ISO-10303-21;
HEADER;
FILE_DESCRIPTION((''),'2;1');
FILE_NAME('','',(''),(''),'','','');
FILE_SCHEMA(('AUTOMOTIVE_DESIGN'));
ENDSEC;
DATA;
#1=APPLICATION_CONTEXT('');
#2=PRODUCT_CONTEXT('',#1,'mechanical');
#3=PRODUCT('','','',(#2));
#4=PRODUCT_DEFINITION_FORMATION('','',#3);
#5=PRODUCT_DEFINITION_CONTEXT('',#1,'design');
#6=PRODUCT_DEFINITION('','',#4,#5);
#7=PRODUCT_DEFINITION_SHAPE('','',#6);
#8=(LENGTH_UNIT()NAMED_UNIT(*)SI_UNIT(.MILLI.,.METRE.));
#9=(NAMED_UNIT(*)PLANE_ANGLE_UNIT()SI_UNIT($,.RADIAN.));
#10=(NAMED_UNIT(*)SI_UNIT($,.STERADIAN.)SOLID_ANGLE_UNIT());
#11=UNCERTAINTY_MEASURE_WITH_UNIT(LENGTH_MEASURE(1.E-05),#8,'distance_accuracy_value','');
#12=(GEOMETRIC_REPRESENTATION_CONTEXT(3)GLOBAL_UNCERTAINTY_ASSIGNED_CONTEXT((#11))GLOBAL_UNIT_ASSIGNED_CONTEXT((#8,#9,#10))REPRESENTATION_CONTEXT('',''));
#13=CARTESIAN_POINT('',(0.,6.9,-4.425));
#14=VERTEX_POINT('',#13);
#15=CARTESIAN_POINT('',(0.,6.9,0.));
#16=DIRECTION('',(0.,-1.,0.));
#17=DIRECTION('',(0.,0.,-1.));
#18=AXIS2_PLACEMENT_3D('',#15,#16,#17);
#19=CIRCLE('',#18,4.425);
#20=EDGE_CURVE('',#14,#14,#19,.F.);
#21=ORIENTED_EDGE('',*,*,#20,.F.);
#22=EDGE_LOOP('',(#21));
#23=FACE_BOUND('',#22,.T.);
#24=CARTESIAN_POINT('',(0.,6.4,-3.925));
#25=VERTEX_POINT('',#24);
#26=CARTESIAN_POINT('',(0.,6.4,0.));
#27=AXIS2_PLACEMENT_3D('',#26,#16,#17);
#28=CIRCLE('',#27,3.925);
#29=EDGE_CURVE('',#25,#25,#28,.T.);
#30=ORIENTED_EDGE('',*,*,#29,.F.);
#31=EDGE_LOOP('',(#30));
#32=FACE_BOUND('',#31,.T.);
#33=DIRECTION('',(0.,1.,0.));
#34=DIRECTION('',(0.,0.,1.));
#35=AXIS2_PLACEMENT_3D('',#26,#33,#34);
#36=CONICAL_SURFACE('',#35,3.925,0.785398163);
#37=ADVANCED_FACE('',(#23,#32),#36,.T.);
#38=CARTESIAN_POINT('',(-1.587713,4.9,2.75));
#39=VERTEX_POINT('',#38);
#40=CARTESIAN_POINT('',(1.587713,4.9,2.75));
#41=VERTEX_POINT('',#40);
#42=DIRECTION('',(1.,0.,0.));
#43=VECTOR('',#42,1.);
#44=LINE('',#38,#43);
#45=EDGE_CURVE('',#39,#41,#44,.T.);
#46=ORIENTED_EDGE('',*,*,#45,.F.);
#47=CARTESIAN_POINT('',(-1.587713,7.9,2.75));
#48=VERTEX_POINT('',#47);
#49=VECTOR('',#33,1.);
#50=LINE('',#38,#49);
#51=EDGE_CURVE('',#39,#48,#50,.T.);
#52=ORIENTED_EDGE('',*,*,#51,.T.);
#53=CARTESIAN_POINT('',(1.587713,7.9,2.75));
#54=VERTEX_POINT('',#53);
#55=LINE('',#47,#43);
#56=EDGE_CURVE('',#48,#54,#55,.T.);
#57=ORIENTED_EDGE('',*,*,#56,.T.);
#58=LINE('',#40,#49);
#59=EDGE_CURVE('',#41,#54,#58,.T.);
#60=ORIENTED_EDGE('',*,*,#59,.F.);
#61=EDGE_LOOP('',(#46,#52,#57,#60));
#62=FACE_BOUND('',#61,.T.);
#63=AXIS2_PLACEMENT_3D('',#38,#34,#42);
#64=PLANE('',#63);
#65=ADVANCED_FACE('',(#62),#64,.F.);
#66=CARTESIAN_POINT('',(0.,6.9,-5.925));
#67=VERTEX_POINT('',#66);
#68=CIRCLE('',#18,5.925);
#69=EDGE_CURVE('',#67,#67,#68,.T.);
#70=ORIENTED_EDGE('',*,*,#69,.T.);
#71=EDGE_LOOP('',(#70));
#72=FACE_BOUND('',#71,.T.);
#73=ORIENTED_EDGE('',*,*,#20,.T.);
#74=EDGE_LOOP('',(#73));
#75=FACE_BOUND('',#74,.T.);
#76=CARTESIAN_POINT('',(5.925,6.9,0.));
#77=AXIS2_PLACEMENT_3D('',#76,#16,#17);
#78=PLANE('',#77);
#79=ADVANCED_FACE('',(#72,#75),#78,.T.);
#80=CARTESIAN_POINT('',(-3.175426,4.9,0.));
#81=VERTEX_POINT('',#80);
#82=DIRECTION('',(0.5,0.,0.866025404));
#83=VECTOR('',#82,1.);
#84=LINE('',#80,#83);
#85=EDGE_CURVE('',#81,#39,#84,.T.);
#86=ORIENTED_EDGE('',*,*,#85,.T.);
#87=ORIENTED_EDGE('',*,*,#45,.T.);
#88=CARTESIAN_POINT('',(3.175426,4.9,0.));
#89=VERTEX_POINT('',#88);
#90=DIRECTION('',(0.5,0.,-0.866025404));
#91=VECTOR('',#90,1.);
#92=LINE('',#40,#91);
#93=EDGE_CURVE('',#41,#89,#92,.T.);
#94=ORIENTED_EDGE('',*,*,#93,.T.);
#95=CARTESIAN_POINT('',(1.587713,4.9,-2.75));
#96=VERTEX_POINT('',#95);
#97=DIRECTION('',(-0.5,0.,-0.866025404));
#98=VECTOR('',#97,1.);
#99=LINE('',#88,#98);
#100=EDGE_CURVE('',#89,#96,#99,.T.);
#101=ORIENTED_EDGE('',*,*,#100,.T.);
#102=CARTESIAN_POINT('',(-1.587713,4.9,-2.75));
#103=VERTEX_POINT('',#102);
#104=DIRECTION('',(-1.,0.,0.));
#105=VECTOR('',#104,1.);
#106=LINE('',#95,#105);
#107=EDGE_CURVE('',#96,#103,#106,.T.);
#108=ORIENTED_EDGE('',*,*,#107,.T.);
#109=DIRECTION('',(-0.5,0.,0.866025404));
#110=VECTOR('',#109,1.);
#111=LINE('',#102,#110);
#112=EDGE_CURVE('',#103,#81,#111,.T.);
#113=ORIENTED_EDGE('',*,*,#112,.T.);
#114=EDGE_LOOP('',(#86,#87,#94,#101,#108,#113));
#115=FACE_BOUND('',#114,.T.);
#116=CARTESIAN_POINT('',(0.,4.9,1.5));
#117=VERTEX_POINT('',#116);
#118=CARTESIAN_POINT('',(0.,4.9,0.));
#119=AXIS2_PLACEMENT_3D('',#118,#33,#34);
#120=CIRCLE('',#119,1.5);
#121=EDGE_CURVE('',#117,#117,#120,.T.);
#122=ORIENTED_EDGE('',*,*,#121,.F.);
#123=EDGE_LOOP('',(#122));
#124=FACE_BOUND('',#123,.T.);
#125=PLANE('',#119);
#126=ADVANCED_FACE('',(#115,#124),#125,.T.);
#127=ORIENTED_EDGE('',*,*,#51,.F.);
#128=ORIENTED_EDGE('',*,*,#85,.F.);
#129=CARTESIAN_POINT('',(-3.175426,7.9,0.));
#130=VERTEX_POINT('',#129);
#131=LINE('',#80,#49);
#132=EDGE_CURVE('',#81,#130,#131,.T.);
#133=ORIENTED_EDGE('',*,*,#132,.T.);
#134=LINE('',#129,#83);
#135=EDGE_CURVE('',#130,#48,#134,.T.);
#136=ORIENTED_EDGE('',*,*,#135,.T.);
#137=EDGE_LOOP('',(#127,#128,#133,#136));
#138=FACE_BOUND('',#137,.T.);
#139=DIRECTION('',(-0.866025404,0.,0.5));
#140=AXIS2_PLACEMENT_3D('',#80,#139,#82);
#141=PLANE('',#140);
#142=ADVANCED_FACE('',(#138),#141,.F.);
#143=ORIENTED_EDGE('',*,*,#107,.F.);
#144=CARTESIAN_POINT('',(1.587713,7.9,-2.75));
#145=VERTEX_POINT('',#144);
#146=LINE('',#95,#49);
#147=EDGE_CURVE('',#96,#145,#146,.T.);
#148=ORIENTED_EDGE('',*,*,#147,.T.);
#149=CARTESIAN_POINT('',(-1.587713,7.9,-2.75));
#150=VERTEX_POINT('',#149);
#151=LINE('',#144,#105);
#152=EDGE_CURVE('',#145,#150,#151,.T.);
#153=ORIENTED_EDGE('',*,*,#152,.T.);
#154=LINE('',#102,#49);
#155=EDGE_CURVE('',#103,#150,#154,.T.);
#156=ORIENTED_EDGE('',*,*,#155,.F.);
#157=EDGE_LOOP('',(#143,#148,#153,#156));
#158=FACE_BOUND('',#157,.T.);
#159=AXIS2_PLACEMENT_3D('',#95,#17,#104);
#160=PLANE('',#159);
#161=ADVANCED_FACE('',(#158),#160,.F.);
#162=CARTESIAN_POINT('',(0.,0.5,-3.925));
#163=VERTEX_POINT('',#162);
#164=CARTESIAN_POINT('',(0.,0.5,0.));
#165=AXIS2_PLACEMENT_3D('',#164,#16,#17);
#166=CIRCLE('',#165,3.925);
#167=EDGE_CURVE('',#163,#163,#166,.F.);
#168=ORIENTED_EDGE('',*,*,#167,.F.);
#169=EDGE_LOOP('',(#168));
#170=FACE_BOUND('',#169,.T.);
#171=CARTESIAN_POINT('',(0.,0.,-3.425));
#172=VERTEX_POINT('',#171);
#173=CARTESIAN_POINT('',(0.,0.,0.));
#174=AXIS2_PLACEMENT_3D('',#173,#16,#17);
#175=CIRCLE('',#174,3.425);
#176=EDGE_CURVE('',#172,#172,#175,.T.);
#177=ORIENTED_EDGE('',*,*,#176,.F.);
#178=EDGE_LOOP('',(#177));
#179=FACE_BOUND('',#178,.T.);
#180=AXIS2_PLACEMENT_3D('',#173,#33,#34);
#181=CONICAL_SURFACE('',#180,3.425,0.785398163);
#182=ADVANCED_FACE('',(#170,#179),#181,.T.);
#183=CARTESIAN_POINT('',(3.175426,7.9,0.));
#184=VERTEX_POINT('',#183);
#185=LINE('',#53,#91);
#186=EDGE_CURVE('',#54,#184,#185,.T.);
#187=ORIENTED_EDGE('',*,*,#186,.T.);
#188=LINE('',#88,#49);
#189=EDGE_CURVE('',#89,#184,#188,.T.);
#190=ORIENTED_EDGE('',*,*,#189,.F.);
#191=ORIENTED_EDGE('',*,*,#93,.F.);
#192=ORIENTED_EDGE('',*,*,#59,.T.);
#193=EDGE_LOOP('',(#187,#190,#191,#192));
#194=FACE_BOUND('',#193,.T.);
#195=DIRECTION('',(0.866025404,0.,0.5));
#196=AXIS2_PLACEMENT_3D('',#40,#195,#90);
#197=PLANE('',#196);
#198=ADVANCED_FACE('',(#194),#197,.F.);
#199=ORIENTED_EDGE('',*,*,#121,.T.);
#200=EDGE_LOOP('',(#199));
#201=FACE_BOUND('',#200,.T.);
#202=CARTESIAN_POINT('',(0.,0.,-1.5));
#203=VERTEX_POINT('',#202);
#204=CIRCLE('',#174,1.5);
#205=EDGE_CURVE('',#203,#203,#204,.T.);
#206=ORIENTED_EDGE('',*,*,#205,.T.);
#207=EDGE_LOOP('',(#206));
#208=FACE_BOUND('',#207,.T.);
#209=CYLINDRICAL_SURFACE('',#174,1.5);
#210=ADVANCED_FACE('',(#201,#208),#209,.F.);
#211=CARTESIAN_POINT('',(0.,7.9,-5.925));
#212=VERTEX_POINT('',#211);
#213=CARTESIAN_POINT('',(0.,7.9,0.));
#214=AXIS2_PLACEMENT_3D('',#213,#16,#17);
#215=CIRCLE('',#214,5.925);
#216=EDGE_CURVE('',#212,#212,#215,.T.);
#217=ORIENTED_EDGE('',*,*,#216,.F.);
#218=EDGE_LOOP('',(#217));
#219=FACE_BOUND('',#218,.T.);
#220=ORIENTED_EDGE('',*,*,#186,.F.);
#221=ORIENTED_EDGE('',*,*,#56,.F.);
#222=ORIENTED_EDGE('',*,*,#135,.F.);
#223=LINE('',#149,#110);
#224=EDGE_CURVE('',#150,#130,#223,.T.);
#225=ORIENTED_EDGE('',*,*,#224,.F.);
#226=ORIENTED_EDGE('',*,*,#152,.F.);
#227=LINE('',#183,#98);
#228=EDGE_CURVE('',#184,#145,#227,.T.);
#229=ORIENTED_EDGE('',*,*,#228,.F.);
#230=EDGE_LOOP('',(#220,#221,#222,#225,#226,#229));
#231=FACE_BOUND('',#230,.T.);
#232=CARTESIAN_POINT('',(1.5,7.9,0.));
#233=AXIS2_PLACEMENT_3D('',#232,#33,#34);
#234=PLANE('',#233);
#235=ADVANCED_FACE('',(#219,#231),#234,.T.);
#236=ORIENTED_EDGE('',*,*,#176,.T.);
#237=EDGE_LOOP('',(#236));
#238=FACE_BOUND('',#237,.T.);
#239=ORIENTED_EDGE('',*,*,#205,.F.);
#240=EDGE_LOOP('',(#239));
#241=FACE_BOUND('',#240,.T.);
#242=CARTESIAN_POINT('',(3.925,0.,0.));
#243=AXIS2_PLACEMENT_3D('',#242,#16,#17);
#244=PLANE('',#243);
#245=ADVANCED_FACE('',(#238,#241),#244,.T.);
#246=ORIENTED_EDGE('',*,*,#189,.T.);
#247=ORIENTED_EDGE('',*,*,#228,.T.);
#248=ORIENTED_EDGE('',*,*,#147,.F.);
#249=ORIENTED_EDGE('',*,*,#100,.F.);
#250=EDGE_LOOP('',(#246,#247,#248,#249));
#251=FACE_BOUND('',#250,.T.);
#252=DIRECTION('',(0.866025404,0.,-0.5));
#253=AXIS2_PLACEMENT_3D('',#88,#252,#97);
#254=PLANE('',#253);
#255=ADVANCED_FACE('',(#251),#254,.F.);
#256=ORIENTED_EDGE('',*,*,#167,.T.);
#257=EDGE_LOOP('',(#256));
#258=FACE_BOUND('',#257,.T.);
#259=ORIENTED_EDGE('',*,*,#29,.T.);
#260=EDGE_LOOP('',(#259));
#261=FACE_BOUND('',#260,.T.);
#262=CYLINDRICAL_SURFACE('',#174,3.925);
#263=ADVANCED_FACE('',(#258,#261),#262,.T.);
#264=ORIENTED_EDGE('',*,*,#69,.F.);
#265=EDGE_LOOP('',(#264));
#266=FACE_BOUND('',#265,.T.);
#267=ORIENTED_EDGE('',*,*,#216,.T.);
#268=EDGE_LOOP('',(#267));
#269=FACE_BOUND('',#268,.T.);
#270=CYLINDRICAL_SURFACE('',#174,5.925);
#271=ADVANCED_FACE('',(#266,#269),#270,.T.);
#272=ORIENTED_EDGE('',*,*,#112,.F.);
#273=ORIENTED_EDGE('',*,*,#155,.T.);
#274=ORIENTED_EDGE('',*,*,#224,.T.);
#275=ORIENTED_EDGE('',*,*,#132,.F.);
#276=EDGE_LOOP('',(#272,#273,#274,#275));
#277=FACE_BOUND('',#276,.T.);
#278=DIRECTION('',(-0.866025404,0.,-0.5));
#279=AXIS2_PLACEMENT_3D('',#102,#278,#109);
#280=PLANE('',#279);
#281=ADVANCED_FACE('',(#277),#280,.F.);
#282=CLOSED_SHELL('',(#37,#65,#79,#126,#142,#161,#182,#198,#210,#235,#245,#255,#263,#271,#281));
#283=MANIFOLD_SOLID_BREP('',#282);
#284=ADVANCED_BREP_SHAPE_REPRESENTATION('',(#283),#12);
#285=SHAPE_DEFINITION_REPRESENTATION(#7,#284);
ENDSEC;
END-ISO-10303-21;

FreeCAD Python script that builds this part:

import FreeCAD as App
import Part
import Sketcher
Q = App.Units.Quantity


def edges_at(feature, points):
    """Names of the edges that pass closest to the given points."""
    edges = feature.Shape.Edges
    near = lambda p: min(range(len(edges)), key=lambda i: edges[i].distToShape(Part.Vertex(*p))[0])
    return sorted({f"Edge{near(p) + 1}" for p in points})


def add_polygon(sketch, points):
    """Adds a closed chain of lines whose ends are joined by coincident constraints."""
    first, n = sketch.GeometryCount, len(points)
    for a, b in zip(points, points[1:] + points[:1]):
        sketch.addGeometry(Part.LineSegment(App.Vector(*a, 0), App.Vector(*b, 0)), False)
    for i in range(n):
        sketch.addConstraint(Sketcher.Constraint("Coincident", first + i, 2, first + (i + 1) % n, 1))

doc = App.newDocument("Part")
body = doc.addObject("PartDesign::Body", "Body")

# Sketch on XY plane
sketch1 = body.newObject("Sketcher::SketchObject", "Sketch")
sketch1.AttachmentSupport = (doc.getObject("XY_Plane"), [""])
sketch1.MapMode = "FlatFace"
add_polygon(sketch1, [(5.9, 7.9), (1.5, 7.9), (1.5, 0), (3.9, 0), (3.9, 6.9), (5.9, 6.9)])  # lines 0-5
sketch1.addConstraint(Sketcher.Constraint("Horizontal", 0))
sketch1.addConstraint(Sketcher.Constraint("Vertical", 1))
sketch1.addConstraint(Sketcher.Constraint("Horizontal", 2))
sketch1.addConstraint(Sketcher.Constraint("Vertical", 3))
sketch1.addConstraint(Sketcher.Constraint("Horizontal", 4))
sketch1.addConstraint(Sketcher.Constraint("Vertical", 5))
sketch1.addConstraint(Sketcher.Constraint("PointOnObject", 1, 2, -1))
sketch1.addConstraint(Sketcher.Constraint("DistanceX", 4, 1, 4, 2, 2.0))
sketch1.addConstraint(Sketcher.Constraint("DistanceY", 5, 1, 5, 2, 1.0))
sketch1.addConstraint(Sketcher.Constraint("DistanceY", 1, 2, 1, 1, 7.9))
sketch1.addConstraint(Sketcher.Constraint("DistanceX", -1, 1, 0, 2, 1.5))
sketch1.addConstraint(Sketcher.Constraint("DistanceX", 0, 2, 0, 1, 4.425))
revolution = body.newObject("PartDesign::Revolution", "Revolution")
revolution.Profile = sketch1
revolution.ReferenceAxis = (sketch1, ["V_Axis"])
revolution.Angle = 360
doc.recompute()

chamfer = body.newObject("PartDesign::Chamfer", "Chamfer")
chamfer.Base = (revolution, edges_at(revolution, [(0, 0, 3.925), (0, 6.9, 3.925)]))
chamfer.Size = 0.5

# Sketch on XZ plane
sketch2 = body.newObject("Sketcher::SketchObject", "Sketch001")
sketch2.AttachmentSupport = (doc.getObject("XZ_Plane"), [""])
sketch2.MapMode = "FlatFace"
sketch2.AttachmentOffset = App.Placement(App.Vector(0, 0, -7.9), App.Rotation())
add_polygon(sketch2, [(1.6, -2.8), (-1.6, -2.8), (-3.2, 0), (-1.6, 2.8), (1.6, 2.8), (3.2, 0)])  # lines 0-5
sketch2.addConstraint(Sketcher.Constraint("Horizontal", 0))
sketch2.addConstraint(Sketcher.Constraint("Horizontal", 3))
sketch2.addConstraint(Sketcher.Constraint("Symmetric", 0, 2, 3, 2, -1, 1))
sketch2.addConstraint(Sketcher.Constraint("Symmetric", 1, 2, 4, 2, -1, 1))
sketch2.addConstraint(Sketcher.Constraint("PointOnObject", 1, 2, -1))
sketch2.addConstraint(Sketcher.Constraint("Parallel", 2, 5))
sketch2.addConstraint(Sketcher.Constraint("Vertical", 0, 2, 2, 2))
sketch2.addConstraint(Sketcher.Constraint("Angle", 1, Q("120 deg")))
sketch2.addConstraint(Sketcher.Constraint("DistanceY", 0, 2, 2, 2, 5.5))
sketch2.addConstraint(Sketcher.Constraint("DistanceX", 0, 2, 0, 1, 3.175426))
pocket1 = body.newObject("PartDesign::Pocket", "Pocket")
pocket1.Profile = sketch2
pocket1.Length = 3
pocket1.Reversed = True

doc.recompute()
